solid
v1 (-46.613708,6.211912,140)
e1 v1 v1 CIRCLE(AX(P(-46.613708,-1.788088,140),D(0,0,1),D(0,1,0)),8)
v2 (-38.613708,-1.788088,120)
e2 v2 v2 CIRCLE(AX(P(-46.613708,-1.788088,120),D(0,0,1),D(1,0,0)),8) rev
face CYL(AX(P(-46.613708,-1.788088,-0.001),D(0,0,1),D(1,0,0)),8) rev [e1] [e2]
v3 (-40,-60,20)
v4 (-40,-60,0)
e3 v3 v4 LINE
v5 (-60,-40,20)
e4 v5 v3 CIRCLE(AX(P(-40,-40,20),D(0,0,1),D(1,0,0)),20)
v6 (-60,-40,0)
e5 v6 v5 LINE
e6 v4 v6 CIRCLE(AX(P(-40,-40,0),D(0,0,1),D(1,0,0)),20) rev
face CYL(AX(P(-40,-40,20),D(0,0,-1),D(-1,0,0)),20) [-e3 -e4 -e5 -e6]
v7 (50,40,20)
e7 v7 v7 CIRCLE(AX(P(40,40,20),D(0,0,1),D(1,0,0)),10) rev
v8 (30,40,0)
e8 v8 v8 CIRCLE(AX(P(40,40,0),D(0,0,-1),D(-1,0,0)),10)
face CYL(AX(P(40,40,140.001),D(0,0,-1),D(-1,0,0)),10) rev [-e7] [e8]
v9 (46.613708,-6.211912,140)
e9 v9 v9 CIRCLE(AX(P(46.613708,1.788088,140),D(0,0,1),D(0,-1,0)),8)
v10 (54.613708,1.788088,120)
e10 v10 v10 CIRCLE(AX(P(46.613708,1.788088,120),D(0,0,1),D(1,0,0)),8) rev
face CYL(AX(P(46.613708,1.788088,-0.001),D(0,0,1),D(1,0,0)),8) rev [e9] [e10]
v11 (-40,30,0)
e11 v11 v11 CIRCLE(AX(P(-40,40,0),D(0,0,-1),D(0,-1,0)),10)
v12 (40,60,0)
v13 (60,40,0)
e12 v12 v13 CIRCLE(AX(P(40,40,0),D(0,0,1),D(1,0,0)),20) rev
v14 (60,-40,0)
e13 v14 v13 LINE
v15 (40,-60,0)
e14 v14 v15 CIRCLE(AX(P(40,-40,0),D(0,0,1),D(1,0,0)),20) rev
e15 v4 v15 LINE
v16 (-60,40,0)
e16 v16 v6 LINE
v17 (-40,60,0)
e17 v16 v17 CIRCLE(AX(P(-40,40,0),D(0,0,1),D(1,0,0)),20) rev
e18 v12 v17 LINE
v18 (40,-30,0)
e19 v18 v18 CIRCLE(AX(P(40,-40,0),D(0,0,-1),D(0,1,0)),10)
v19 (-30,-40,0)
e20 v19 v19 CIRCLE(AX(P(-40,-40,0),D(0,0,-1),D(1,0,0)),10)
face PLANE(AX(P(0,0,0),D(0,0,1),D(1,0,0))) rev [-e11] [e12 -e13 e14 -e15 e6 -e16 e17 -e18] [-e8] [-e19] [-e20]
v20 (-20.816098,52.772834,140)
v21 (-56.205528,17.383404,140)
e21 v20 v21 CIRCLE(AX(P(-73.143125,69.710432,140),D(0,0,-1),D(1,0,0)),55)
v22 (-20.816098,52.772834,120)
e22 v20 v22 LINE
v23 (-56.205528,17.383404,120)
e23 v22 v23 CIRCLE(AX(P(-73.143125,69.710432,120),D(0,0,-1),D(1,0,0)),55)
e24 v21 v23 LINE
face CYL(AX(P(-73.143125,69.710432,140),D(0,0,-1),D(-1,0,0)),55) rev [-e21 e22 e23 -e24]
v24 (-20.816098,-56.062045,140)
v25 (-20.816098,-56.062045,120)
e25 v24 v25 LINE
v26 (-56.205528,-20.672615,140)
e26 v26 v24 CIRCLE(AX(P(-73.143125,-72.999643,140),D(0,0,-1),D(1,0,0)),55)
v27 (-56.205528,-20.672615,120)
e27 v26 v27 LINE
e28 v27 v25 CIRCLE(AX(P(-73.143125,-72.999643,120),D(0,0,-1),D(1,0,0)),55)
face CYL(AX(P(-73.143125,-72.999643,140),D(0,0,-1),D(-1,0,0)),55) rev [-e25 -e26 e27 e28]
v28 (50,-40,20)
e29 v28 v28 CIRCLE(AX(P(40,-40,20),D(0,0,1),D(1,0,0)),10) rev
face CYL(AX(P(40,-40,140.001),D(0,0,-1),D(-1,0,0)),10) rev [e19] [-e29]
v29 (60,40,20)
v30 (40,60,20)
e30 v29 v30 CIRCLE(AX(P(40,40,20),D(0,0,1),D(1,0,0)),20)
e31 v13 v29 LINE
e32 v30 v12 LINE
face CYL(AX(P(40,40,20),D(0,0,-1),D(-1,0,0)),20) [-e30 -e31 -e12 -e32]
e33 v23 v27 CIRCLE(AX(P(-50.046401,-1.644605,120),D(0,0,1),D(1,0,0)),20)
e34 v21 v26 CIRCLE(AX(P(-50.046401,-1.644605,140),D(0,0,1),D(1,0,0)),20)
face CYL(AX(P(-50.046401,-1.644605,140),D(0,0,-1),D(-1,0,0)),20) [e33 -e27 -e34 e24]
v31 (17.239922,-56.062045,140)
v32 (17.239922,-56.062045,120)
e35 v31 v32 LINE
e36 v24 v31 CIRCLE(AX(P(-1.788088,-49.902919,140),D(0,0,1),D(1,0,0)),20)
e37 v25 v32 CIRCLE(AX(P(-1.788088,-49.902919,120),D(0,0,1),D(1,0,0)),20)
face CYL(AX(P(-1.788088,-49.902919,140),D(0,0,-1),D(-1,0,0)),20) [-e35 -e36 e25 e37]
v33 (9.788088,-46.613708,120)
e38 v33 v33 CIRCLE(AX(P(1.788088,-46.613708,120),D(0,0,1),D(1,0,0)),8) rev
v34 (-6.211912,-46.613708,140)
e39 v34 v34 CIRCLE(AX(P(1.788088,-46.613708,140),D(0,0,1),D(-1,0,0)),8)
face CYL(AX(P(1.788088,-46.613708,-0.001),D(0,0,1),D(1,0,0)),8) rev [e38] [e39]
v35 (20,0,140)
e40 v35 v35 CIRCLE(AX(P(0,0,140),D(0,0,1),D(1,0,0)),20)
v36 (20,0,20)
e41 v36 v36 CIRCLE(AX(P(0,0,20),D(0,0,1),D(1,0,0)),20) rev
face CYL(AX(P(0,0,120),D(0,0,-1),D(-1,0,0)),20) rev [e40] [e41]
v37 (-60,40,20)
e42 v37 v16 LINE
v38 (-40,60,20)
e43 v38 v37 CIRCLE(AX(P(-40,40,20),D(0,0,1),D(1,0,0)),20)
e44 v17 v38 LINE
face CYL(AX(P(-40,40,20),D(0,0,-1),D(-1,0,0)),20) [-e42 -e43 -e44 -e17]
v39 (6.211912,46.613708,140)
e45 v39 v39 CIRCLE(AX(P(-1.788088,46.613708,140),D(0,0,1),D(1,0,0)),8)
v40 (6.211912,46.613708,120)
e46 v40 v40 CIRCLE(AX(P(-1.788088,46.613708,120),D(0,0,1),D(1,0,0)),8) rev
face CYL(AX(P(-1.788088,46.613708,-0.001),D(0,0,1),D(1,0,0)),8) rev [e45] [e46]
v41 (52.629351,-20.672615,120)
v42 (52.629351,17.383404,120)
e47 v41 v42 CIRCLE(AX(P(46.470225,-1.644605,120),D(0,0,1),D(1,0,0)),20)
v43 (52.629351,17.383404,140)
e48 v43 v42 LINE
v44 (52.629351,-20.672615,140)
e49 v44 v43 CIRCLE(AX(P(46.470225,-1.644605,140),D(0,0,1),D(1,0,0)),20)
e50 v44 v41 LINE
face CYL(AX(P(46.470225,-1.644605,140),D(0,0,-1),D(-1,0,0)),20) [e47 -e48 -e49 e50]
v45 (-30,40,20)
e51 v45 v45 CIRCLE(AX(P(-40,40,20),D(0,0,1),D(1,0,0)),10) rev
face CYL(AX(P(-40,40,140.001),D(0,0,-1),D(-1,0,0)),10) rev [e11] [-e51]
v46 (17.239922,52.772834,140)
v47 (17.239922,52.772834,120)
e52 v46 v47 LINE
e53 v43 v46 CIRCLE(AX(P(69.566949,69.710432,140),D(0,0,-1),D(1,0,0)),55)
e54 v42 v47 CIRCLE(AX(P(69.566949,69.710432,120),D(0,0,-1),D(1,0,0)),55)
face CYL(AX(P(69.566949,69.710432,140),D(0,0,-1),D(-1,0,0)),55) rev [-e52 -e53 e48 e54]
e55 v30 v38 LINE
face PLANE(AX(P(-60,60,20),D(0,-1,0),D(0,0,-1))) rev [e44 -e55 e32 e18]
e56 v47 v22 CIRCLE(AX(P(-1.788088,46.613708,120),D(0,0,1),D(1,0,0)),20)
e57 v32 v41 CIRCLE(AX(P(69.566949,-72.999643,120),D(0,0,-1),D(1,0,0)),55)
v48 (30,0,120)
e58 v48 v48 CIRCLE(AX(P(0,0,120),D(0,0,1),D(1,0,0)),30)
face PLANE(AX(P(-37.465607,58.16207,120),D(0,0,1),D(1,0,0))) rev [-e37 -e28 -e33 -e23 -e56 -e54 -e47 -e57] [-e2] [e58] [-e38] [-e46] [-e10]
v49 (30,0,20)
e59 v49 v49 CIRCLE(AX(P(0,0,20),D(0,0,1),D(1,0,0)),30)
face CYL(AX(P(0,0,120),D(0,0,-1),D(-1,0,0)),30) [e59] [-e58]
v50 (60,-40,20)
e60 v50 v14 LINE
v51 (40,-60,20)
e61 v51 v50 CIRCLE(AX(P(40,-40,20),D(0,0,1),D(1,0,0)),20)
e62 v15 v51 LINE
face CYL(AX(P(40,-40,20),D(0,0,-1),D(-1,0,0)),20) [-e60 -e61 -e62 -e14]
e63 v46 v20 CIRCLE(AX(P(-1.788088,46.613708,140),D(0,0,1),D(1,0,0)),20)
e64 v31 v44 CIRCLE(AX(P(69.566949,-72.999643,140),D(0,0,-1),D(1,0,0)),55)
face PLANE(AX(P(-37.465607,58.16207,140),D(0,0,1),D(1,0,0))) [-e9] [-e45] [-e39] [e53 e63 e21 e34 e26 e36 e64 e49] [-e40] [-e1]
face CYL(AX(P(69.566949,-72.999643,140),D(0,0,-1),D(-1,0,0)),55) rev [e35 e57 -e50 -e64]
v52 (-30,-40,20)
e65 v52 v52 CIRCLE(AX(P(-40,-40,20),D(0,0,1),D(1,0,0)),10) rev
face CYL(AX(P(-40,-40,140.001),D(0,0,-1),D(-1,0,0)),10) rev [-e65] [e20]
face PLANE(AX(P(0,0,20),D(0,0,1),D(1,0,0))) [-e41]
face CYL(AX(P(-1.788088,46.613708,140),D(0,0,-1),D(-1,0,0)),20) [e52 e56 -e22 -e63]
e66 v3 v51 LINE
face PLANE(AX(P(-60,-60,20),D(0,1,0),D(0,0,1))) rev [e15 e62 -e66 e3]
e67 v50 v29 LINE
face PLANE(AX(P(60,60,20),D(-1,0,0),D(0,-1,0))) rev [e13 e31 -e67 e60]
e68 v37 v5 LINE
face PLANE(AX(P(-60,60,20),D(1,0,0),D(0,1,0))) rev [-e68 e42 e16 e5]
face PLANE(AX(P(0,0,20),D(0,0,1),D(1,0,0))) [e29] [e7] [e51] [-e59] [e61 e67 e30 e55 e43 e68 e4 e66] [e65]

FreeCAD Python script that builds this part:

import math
import FreeCAD as App
import Part
import Sketcher


def edges_at(feature, points):
    """Names of the edges that pass closest to the given points."""
    edges = feature.Shape.Edges
    near = lambda p: min(range(len(edges)), key=lambda i: edges[i].distToShape(Part.Vertex(*p))[0])
    return sorted({f"Edge{near(p) + 1}" for p in points})


def add_polygon(sketch, points):
    """Adds a closed chain of lines whose ends are joined by coincident constraints."""
    first, n = sketch.GeometryCount, len(points)
    for a, b in zip(points, points[1:] + points[:1]):
        sketch.addGeometry(Part.LineSegment(App.Vector(*a, 0), App.Vector(*b, 0)), False)
    for i in range(n):
        sketch.addConstraint(Sketcher.Constraint("Coincident", first + i, 2, first + (i + 1) % n, 1))

doc = App.newDocument("Part")
body = doc.addObject("PartDesign::Body", "Body")

sketch1 = body.newObject("Sketcher::SketchObject", "Sketch")
sketch1.AttachmentSupport = (doc.getObject("XY_Plane"), [""])
sketch1.MapMode = "FlatFace"
add_polygon(sketch1, [(-60, 60), (-60, -60), (60, -60), (60, 60)])
sketch1.addConstraint(Sketcher.Constraint("Vertical", 0))
sketch1.addConstraint(Sketcher.Constraint("Horizontal", 1))
sketch1.addConstraint(Sketcher.Constraint("Vertical", 2))
sketch1.addConstraint(Sketcher.Constraint("Horizontal", 3))
sketch1.addConstraint(Sketcher.Constraint("Symmetric", 0, 2, 2, 2, -1, 1))
sketch1.addConstraint(Sketcher.Constraint("Equal", 3, 0))
sketch1.addConstraint(Sketcher.Constraint("DistanceX", 1, 1, 1, 2, 120.0))
pad1 = body.newObject("PartDesign::Pad", "Pad")
pad1.Profile = sketch1
pad1.Length = 20

sketch2 = body.newObject("Sketcher::SketchObject", "Sketch001")
sketch2.AttachmentSupport = (doc.getObject("XY_Plane"), [""])
sketch2.MapMode = "FlatFace"
sketch2.AttachmentOffset = App.Placement(App.Vector(0, 0, 20), App.Rotation())
sketch2.addGeometry(Part.Circle(App.Vector(0, 0, 0), App.Vector(0, 0, 1), 30), False)
sketch2.addGeometry(Part.Circle(App.Vector(0, 0, 0), App.Vector(0, 0, 1), 20), False)
sketch2.addConstraint(Sketcher.Constraint("Coincident", 0, 3, -1, 1))
sketch2.addConstraint(Sketcher.Constraint("Coincident", 1, 3, -1, 1))
sketch2.addConstraint(Sketcher.Constraint("Diameter", 0, 60.0))
sketch2.addConstraint(Sketcher.Constraint("Diameter", 1, 40.0))
pad2 = body.newObject("PartDesign::Pad", "Pad001")
pad2.Profile = sketch2
pad2.Length = 100

sketch3 = body.newObject("Sketcher::SketchObject", "Sketch002")
sketch3.AttachmentSupport = (doc.getObject("XY_Plane"), [""])
sketch3.MapMode = "FlatFace"
sketch3.AttachmentOffset = App.Placement(App.Vector(0, 0, 120), App.Rotation())
sketch3.addGeometry(Part.ArcOfCircle(Part.Circle(App.Vector(-73.143125, 69.710432, 0), App.Vector(0, 0, 1), 55), math.radians(-72.063888), math.radians(-17.936112)), False)
sketch3.addGeometry(Part.ArcOfCircle(Part.Circle(App.Vector(-50.046401, -1.644605, 0), App.Vector(0, 0, 1), 20), math.radians(107.936112), math.radians(252.063888)), False)
sketch3.addGeometry(Part.ArcOfCircle(Part.Circle(App.Vector(-73.143125, -72.999643, 0), App.Vector(0, 0, 1), 55), math.radians(17.936112), math.radians(72.063888)), False)
sketch3.addGeometry(Part.ArcOfCircle(Part.Circle(App.Vector(-1.788088, -49.902919, 0), App.Vector(0, 0, 1), 20), math.radians(-162.063888), math.radians(-17.936112)), False)
sketch3.addGeometry(Part.ArcOfCircle(Part.Circle(App.Vector(69.566949, -72.999643, 0), App.Vector(0, 0, 1), 55), math.radians(107.936112), math.radians(162.063888)), False)
sketch3.addGeometry(Part.ArcOfCircle(Part.Circle(App.Vector(46.470225, -1.644605, 0), App.Vector(0, 0, 1), 20), math.radians(-72.063888), math.radians(72.063888)), False)
sketch3.addGeometry(Part.ArcOfCircle(Part.Circle(App.Vector(69.566949, 69.710432, 0), App.Vector(0, 0, 1), 55), math.radians(-162.063888), math.radians(-107.936112)), False)
sketch3.addGeometry(Part.ArcOfCircle(Part.Circle(App.Vector(-1.788088, 46.613708, 0), App.Vector(0, 0, 1), 20), math.radians(17.936112), math.radians(162.063888)), False)
sketch3.addGeometry(Part.Circle(App.Vector(0, 0, 0), App.Vector(0, 0, 1), 20), False)
sketch3.addConstraint(Sketcher.Constraint("Tangent", 0, 1, 1, 1))
sketch3.addConstraint(Sketcher.Constraint("Tangent", 1, 2, 2, 2))
sketch3.addConstraint(Sketcher.Constraint("Tangent", 2, 1, 3, 1))
sketch3.addConstraint(Sketcher.Constraint("Tangent", 3, 2, 4, 2))
sketch3.addConstraint(Sketcher.Constraint("Tangent", 4, 1, 5, 1))
sketch3.addConstraint(Sketcher.Constraint("Tangent", 5, 2, 6, 2))
sketch3.addConstraint(Sketcher.Constraint("Tangent", 6, 1, 7, 1))
sketch3.addConstraint(Sketcher.Constraint("Tangent", 7, 2, 0, 2))
sketch3.addConstraint(Sketcher.Constraint("Coincident", 8, 3, -1, 1))
sketch3.addConstraint(Sketcher.Constraint("Equal", 0, 2))
sketch3.addConstraint(Sketcher.Constraint("Equal", 1, 3))
sketch3.addConstraint(Sketcher.Constraint("Equal", 2, 4))
sketch3.addConstraint(Sketcher.Constraint("Equal", 3, 5))
sketch3.addConstraint(Sketcher.Constraint("Equal", 4, 6))
sketch3.addConstraint(Sketcher.Constraint("Equal", 5, 7))
sketch3.addConstraint(Sketcher.Constraint("Equal", 7, 8))
sketch3.addConstraint(Sketcher.Constraint("Horizontal", 2, 3, 4, 3))
sketch3.addConstraint(Sketcher.Constraint("Horizontal", 1, 3, 5, 3))
sketch3.addConstraint(Sketcher.Constraint("Horizontal", 0, 3, 6, 3))
sketch3.addConstraint(Sketcher.Constraint("Vertical", 0, 3, 2, 3))
sketch3.addConstraint(Sketcher.Constraint("Diameter", 8, 40.0))
sketch3.addConstraint(Sketcher.Constraint("Radius", 0, 55.0))
sketch3.addConstraint(Sketcher.Constraint("DistanceX", 1, 3, -1, 1, 50.046401))
sketch3.addConstraint(Sketcher.Constraint("DistanceX", 2, 1, -1, 1, 20.816098))
sketch3.addConstraint(Sketcher.Constraint("DistanceY", -1, 1, 0, 3, 69.710432))
sketch3.addConstraint(Sketcher.Constraint("DistanceX", 3, 3, -1, 1, 1.788088))
pad3 = body.newObject("PartDesign::Pad", "Pad002")
pad3.Profile = sketch3
pad3.Length = 20
doc.recompute()

fillet = body.newObject("PartDesign::Fillet", "Fillet")
fillet.Base = (pad3, edges_at(pad3, [
    (-60, 60, 10),
    (60, 60, 10),
    (60, -60, 10),
    (-60, -60, 10),
]))
fillet.Radius = 20

sketch4 = body.newObject("Sketcher::SketchObject", "Sketch003")
sketch4.AttachmentSupport = (doc.getObject("XY_Plane"), [""])
sketch4.MapMode = "FlatFace"
sketch4.AttachmentOffset = App.Placement(App.Vector(0, 0, 140), App.Rotation())
sketch4.addGeometry(Part.Circle(App.Vector(-1.788088, 46.613708, 0), App.Vector(0, 0, 1), 8), False)
sketch4.addConstraint(Sketcher.Constraint("Diameter", 0, 16.0))
sketch4.addConstraint(Sketcher.Constraint("DistanceX", 0, 3, -1, 1, 1.788088))
sketch4.addConstraint(Sketcher.Constraint("DistanceY", -1, 1, 0, 3, 46.613708))
pocket1 = body.newObject("PartDesign::Pocket", "Pocket")
pocket1.Profile = sketch4
pocket1.Length = 20

sketch5 = body.newObject("Sketcher::SketchObject", "Sketch004")
sketch5.AttachmentSupport = (doc.getObject("XY_Plane"), [""])
sketch5.MapMode = "FlatFace"
sketch5.addGeometry(Part.Circle(App.Vector(40, 40, 0), App.Vector(0, 0, 1), 10), False)
sketch5.addConstraint(Sketcher.Constraint("Diameter", 0, 20.0))
sketch5.addConstraint(Sketcher.Constraint("DistanceX", -1, 1, 0, 3, 40.0))
sketch5.addConstraint(Sketcher.Constraint("DistanceY", -1, 1, 0, 3, 40.0))
pocket2 = body.newObject("PartDesign::Pocket", "Pocket001")
pocket2.Profile = sketch5
pocket2.Length = 20
pocket2.Reversed = True
doc.recompute()

polarpattern = body.newObject("PartDesign::PolarPattern", "PolarPattern")
polarpattern.Originals = [pocket1, pocket2]
polarpattern.Axis = (doc.getObject("Z_Axis"), [""])
polarpattern.Angle = 360
polarpattern.Occurrences = 4
body.Tip = polarpattern

doc.recompute()
